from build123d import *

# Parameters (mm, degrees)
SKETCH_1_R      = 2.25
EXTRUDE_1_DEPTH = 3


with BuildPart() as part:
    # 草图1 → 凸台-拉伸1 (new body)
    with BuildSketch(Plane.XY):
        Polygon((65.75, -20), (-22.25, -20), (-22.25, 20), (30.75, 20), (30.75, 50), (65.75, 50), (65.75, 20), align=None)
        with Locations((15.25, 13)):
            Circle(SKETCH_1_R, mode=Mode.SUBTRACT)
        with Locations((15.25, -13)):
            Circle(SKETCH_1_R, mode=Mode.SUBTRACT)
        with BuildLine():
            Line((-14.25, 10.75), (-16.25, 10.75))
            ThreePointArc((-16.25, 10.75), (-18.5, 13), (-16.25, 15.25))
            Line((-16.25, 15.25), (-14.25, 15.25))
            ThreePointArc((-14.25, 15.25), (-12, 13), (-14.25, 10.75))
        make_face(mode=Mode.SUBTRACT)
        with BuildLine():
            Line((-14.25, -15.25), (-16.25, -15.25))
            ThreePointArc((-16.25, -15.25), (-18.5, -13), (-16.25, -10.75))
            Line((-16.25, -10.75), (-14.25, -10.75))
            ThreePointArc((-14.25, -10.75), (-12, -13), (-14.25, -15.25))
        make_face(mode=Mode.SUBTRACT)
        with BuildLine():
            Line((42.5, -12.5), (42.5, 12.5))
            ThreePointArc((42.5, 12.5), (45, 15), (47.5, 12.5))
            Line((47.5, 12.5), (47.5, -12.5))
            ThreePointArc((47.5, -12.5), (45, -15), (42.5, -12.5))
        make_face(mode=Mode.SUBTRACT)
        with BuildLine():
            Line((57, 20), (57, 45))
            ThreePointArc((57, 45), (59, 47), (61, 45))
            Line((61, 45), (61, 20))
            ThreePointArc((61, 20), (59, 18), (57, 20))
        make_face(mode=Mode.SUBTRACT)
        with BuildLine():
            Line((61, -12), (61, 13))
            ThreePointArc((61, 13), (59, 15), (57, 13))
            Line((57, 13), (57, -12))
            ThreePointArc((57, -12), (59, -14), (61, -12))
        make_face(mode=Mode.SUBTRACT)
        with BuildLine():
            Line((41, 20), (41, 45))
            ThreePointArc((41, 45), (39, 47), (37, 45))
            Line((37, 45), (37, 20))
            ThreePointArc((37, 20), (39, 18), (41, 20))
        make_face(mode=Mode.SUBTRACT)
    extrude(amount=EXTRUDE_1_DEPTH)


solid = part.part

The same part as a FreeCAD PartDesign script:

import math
import FreeCAD as App
import Part
import Sketcher

V = App.Vector
Q = App.Units.Quantity


def add_polygon(sketch, points):
    """Adds a closed chain of lines whose ends are joined by coincident constraints."""
    first, n = sketch.GeometryCount, len(points)
    for a, b in zip(points, points[1:] + points[:1]):
        sketch.addGeometry(Part.LineSegment(App.Vector(*a, 0), App.Vector(*b, 0)), False)
    for i in range(n):
        sketch.addConstraint(Sketcher.Constraint("Coincident", first + i, 2, first + (i + 1) % n, 1))

doc = App.newDocument("Part")
params = doc.addObject("Spreadsheet::Sheet", "Params")
for row, (alias, value) in enumerate([
    ("sketch1_radius", "2 mm"),
    ("sketch1_diameter", "4.5 mm"),
    ("sketch1_radius2", "2.5 mm"),
    ("sketch1_width", "88 mm"),
    ("sketch1_width2", "35 mm"),
    ("pad1_length", "3 mm"),
], start=1):
    params.set(f"A{row}", alias)
    params.set(f"B{row}", "=" + value)
    params.setAlias(f"B{row}", alias)

body = doc.addObject("PartDesign::Body", "Body")

# Sketch on XY plane
sketch1 = body.newObject("Sketcher::SketchObject", "Sketch")
sketch1.AttachmentSupport = (doc.getObject("XY_Plane"), [""])
sketch1.MapMode = "FlatFace"
add_polygon(sketch1, [(-22.2, -20), (65.8, -20), (65.8, 50), (30.8, 50), (30.8, 20), (-22.2, 20)])  # lines 0-5
sketch1.addGeometry(Part.LineSegment(V(42.5, -12.5, 0), V(42.5, 12.5, 0)), False)  # 6
sketch1.addGeometry(Part.ArcOfCircle(Part.Circle(V(45, 12.5, 0), V(0, 0, 1), 2.5), math.radians(0), math.radians(180)), False)  # 7
sketch1.addGeometry(Part.LineSegment(V(47.5, 12.5, 0), V(47.5, -12.5, 0)), False)  # 8
sketch1.addGeometry(Part.ArcOfCircle(Part.Circle(V(45, -12.5, 0), V(0, 0, 1), 2.5), math.radians(180), math.radians(360)), False)  # 9
sketch1.addGeometry(Part.ArcOfCircle(Part.Circle(V(59, -12, 0), V(0, 0, 1), 2), math.radians(180), math.radians(360)), False)  # 10
sketch1.addGeometry(Part.LineSegment(V(57, -12, 0), V(57, 13, 0)), False)  # 11
sketch1.addGeometry(Part.ArcOfCircle(Part.Circle(V(59, 13, 0), V(0, 0, 1), 2), math.radians(0), math.radians(180)), False)  # 12
sketch1.addGeometry(Part.LineSegment(V(61, 13, 0), V(61, -12, 0)), False)  # 13
sketch1.addGeometry(Part.Circle(V(15.2, -13, 0), V(0, 0, 1), 2.2), False)  # 14
sketch1.addGeometry(Part.LineSegment(V(-14.2, -15.2, 0), V(-16.2, -15.2, 0)), False)  # 15
sketch1.addGeometry(Part.ArcOfCircle(Part.Circle(V(-16.2, -13, 0), V(0, 0, 1), 2.2), math.radians(90), math.radians(270)), False)  # 16
sketch1.addGeometry(Part.LineSegment(V(-16.2, -10.8, 0), V(-14.2, -10.8, 0)), False)  # 17
sketch1.addGeometry(Part.ArcOfCircle(Part.Circle(V(-14.2, -13, 0), V(0, 0, 1), 2.2), math.radians(-90), math.radians(90)), False)  # 18
sketch1.addGeometry(Part.Circle(V(15.2, 13, 0), V(0, 0, 1), 2.2), False)  # 19
sketch1.addGeometry(Part.LineSegment(V(-14.2, 10.8, 0), V(-16.2, 10.8, 0)), False)  # 20
sketch1.addGeometry(Part.ArcOfCircle(Part.Circle(V(-16.2, 13, 0), V(0, 0, 1), 2.2), math.radians(90), math.radians(270)), False)  # 21
sketch1.addGeometry(Part.LineSegment(V(-16.2, 15.2, 0), V(-14.2, 15.2, 0)), False)  # 22
sketch1.addGeometry(Part.ArcOfCircle(Part.Circle(V(-14.2, 13, 0), V(0, 0, 1), 2.2), math.radians(-90), math.radians(90)), False)  # 23
sketch1.addGeometry(Part.LineSegment(V(57, 20, 0), V(57, 45, 0)), False)  # 24
sketch1.addGeometry(Part.ArcOfCircle(Part.Circle(V(59, 45, 0), V(0, 0, 1), 2), math.radians(0), math.radians(180)), False)  # 25
sketch1.addGeometry(Part.LineSegment(V(61, 45, 0), V(61, 20, 0)), False)  # 26
sketch1.addGeometry(Part.ArcOfCircle(Part.Circle(V(59, 20, 0), V(0, 0, 1), 2), math.radians(180), math.radians(360)), False)  # 27
sketch1.addGeometry(Part.ArcOfCircle(Part.Circle(V(39, 20, 0), V(0, 0, 1), 2), math.radians(180), math.radians(360)), False)  # 28
sketch1.addGeometry(Part.LineSegment(V(37, 20, 0), V(37, 45, 0)), False)  # 29
sketch1.addGeometry(Part.ArcOfCircle(Part.Circle(V(39, 45, 0), V(0, 0, 1), 2), math.radians(0), math.radians(180)), False)  # 30
sketch1.addGeometry(Part.LineSegment(V(41, 45, 0), V(41, 20, 0)), False)  # 31
sketch1.addConstraint([
    Sketcher.Constraint("Tangent", 6, 2, 7, 2),
    Sketcher.Constraint("Tangent", 7, 1, 8, 1),
    Sketcher.Constraint("Tangent", 8, 2, 9, 2),
    Sketcher.Constraint("Tangent", 9, 1, 6, 1),
    Sketcher.Constraint("Tangent", 10, 1, 11, 1),
    Sketcher.Constraint("Tangent", 11, 2, 12, 2),
    Sketcher.Constraint("Tangent", 12, 1, 13, 1),
    Sketcher.Constraint("Tangent", 13, 2, 10, 2),
    Sketcher.Constraint("Tangent", 15, 2, 16, 2),
    Sketcher.Constraint("Tangent", 16, 1, 17, 1),
    Sketcher.Constraint("Tangent", 17, 2, 18, 2),
    Sketcher.Constraint("Tangent", 18, 1, 15, 1),
    Sketcher.Constraint("Tangent", 20, 2, 21, 2),
    Sketcher.Constraint("Tangent", 21, 1, 22, 1),
    Sketcher.Constraint("Tangent", 22, 2, 23, 2),
    Sketcher.Constraint("Tangent", 23, 1, 20, 1),
    Sketcher.Constraint("Tangent", 24, 2, 25, 2),
    Sketcher.Constraint("Tangent", 25, 1, 26, 1),
    Sketcher.Constraint("Tangent", 26, 2, 27, 2),
    Sketcher.Constraint("Tangent", 27, 1, 24, 1),
    Sketcher.Constraint("Tangent", 28, 1, 29, 1),
    Sketcher.Constraint("Tangent", 29, 2, 30, 2),
    Sketcher.Constraint("Tangent", 30, 1, 31, 1),
    Sketcher.Constraint("Tangent", 31, 2, 28, 2),
    Sketcher.Constraint("Horizontal", 0),
    Sketcher.Constraint("Vertical", 1),
    Sketcher.Constraint("Horizontal", 2),
    Sketcher.Constraint("Vertical", 3),
    Sketcher.Constraint("Horizontal", 4),
    Sketcher.Constraint("Vertical", 5),
    Sketcher.Constraint("Vertical", 6),
    Sketcher.Constraint("Vertical", 8),
    Sketcher.Constraint("Vertical", 11),
    Sketcher.Constraint("Vertical", 13),
    Sketcher.Constraint("Horizontal", 15),
    Sketcher.Constraint("Horizontal", 17),
    Sketcher.Constraint("Horizontal", 20),
    Sketcher.Constraint("Horizontal", 22),
    Sketcher.Constraint("Vertical", 24),
    Sketcher.Constraint("Vertical", 26),
    Sketcher.Constraint("Vertical", 29),
    Sketcher.Constraint("Vertical", 31),
    Sketcher.Constraint("Equal", 14, 16),
    Sketcher.Constraint("Equal", 18, 19),
    Sketcher.Constraint("Equal", 19, 21),
    Sketcher.Constraint("Equal", 12, 25),
    Sketcher.Constraint("Equal", 27, 28),
    Sketcher.Constraint("Symmetric", 14, 3, 19, 3, -1),
    Sketcher.Constraint("Symmetric", 16, 3, 21, 3, -1),
    Sketcher.Constraint("Horizontal", 14, 3, 16, 3),
    Sketcher.Constraint("Horizontal", 12, 3, 19, 3),
    Sketcher.Constraint("Horizontal", 27, 3, 28, 3),
    Sketcher.Constraint("Horizontal", 25, 3, 30, 3),
    Sketcher.Constraint("Horizontal", 28, 3, 3, 2),
    Sketcher.Constraint("Vertical", 18, 3, 23, 3),
    Sketcher.Constraint("Vertical", 12, 3, 25, 3),
    Sketcher.Constraint("Equal", 8, 11),
    Sketcher.Constraint("Equal", 13, 24),
    Sketcher.Constraint("Radius", 10, Q("2 mm")),
    Sketcher.Constraint("Diameter", 14, Q("4.5 mm")),
    Sketcher.Constraint("Radius", 7, Q("2.5 mm")),
    Sketcher.Constraint("DistanceX", 0, 1, 0, 2, Q("88 mm")),
    Sketcher.Constraint("DistanceX", 2, 2, 2, 1, Q("35 mm")),
    Sketcher.Constraint("DistanceX", 15, 2, 15, 1, Q("2 mm")),
    Sketcher.Constraint("DistanceY", 1, 1, 1, 2, Q("70 mm")),
    Sketcher.Constraint("DistanceY", 3, 2, 3, 1, Q("30 mm")),
    Sketcher.Constraint("DistanceY", 6, 1, 6, 2, Q("25 mm")),
    Sketcher.Constraint("DistanceX", -1, 1, 7, 3, Q("45 mm")),
    Sketcher.Constraint("DistanceX", -1, 1, 10, 3, Q("59 mm")),
    Sketcher.Constraint("DistanceY", 10, 3, -1, 1, Q("12 mm")),
    Sketcher.Constraint("DistanceY", -1, 1, 25, 3, Q("45 mm")),
    Sketcher.Constraint("DistanceX", -1, 1, 28, 3, Q("39 mm")),
    Sketcher.Constraint("DistanceX", 4, 2, 21, 3, Q("6 mm")),
    Sketcher.Constraint("DistanceY", -1, 1, 7, 3, Q("12.5 mm")),
    Sketcher.Constraint("DistanceX", 16, 3, 14, 3, Q("31.5 mm")),
    Sketcher.Constraint("DistanceX", -1, 1, 14, 3, Q("15.25 mm")),
])
sketch1.setExpression("Constraints[64]", "Params.sketch1_radius")
sketch1.setExpression("Constraints[65]", "Params.sketch1_diameter")
sketch1.setExpression("Constraints[66]", "Params.sketch1_radius2")
sketch1.setExpression("Constraints[67]", "Params.sketch1_width")
sketch1.setExpression("Constraints[68]", "Params.sketch1_width2")
pad1 = body.newObject("PartDesign::Pad", "Pad")
pad1.Profile = sketch1
pad1.setExpression("Length", "Params.pad1_length")

doc.recompute()
